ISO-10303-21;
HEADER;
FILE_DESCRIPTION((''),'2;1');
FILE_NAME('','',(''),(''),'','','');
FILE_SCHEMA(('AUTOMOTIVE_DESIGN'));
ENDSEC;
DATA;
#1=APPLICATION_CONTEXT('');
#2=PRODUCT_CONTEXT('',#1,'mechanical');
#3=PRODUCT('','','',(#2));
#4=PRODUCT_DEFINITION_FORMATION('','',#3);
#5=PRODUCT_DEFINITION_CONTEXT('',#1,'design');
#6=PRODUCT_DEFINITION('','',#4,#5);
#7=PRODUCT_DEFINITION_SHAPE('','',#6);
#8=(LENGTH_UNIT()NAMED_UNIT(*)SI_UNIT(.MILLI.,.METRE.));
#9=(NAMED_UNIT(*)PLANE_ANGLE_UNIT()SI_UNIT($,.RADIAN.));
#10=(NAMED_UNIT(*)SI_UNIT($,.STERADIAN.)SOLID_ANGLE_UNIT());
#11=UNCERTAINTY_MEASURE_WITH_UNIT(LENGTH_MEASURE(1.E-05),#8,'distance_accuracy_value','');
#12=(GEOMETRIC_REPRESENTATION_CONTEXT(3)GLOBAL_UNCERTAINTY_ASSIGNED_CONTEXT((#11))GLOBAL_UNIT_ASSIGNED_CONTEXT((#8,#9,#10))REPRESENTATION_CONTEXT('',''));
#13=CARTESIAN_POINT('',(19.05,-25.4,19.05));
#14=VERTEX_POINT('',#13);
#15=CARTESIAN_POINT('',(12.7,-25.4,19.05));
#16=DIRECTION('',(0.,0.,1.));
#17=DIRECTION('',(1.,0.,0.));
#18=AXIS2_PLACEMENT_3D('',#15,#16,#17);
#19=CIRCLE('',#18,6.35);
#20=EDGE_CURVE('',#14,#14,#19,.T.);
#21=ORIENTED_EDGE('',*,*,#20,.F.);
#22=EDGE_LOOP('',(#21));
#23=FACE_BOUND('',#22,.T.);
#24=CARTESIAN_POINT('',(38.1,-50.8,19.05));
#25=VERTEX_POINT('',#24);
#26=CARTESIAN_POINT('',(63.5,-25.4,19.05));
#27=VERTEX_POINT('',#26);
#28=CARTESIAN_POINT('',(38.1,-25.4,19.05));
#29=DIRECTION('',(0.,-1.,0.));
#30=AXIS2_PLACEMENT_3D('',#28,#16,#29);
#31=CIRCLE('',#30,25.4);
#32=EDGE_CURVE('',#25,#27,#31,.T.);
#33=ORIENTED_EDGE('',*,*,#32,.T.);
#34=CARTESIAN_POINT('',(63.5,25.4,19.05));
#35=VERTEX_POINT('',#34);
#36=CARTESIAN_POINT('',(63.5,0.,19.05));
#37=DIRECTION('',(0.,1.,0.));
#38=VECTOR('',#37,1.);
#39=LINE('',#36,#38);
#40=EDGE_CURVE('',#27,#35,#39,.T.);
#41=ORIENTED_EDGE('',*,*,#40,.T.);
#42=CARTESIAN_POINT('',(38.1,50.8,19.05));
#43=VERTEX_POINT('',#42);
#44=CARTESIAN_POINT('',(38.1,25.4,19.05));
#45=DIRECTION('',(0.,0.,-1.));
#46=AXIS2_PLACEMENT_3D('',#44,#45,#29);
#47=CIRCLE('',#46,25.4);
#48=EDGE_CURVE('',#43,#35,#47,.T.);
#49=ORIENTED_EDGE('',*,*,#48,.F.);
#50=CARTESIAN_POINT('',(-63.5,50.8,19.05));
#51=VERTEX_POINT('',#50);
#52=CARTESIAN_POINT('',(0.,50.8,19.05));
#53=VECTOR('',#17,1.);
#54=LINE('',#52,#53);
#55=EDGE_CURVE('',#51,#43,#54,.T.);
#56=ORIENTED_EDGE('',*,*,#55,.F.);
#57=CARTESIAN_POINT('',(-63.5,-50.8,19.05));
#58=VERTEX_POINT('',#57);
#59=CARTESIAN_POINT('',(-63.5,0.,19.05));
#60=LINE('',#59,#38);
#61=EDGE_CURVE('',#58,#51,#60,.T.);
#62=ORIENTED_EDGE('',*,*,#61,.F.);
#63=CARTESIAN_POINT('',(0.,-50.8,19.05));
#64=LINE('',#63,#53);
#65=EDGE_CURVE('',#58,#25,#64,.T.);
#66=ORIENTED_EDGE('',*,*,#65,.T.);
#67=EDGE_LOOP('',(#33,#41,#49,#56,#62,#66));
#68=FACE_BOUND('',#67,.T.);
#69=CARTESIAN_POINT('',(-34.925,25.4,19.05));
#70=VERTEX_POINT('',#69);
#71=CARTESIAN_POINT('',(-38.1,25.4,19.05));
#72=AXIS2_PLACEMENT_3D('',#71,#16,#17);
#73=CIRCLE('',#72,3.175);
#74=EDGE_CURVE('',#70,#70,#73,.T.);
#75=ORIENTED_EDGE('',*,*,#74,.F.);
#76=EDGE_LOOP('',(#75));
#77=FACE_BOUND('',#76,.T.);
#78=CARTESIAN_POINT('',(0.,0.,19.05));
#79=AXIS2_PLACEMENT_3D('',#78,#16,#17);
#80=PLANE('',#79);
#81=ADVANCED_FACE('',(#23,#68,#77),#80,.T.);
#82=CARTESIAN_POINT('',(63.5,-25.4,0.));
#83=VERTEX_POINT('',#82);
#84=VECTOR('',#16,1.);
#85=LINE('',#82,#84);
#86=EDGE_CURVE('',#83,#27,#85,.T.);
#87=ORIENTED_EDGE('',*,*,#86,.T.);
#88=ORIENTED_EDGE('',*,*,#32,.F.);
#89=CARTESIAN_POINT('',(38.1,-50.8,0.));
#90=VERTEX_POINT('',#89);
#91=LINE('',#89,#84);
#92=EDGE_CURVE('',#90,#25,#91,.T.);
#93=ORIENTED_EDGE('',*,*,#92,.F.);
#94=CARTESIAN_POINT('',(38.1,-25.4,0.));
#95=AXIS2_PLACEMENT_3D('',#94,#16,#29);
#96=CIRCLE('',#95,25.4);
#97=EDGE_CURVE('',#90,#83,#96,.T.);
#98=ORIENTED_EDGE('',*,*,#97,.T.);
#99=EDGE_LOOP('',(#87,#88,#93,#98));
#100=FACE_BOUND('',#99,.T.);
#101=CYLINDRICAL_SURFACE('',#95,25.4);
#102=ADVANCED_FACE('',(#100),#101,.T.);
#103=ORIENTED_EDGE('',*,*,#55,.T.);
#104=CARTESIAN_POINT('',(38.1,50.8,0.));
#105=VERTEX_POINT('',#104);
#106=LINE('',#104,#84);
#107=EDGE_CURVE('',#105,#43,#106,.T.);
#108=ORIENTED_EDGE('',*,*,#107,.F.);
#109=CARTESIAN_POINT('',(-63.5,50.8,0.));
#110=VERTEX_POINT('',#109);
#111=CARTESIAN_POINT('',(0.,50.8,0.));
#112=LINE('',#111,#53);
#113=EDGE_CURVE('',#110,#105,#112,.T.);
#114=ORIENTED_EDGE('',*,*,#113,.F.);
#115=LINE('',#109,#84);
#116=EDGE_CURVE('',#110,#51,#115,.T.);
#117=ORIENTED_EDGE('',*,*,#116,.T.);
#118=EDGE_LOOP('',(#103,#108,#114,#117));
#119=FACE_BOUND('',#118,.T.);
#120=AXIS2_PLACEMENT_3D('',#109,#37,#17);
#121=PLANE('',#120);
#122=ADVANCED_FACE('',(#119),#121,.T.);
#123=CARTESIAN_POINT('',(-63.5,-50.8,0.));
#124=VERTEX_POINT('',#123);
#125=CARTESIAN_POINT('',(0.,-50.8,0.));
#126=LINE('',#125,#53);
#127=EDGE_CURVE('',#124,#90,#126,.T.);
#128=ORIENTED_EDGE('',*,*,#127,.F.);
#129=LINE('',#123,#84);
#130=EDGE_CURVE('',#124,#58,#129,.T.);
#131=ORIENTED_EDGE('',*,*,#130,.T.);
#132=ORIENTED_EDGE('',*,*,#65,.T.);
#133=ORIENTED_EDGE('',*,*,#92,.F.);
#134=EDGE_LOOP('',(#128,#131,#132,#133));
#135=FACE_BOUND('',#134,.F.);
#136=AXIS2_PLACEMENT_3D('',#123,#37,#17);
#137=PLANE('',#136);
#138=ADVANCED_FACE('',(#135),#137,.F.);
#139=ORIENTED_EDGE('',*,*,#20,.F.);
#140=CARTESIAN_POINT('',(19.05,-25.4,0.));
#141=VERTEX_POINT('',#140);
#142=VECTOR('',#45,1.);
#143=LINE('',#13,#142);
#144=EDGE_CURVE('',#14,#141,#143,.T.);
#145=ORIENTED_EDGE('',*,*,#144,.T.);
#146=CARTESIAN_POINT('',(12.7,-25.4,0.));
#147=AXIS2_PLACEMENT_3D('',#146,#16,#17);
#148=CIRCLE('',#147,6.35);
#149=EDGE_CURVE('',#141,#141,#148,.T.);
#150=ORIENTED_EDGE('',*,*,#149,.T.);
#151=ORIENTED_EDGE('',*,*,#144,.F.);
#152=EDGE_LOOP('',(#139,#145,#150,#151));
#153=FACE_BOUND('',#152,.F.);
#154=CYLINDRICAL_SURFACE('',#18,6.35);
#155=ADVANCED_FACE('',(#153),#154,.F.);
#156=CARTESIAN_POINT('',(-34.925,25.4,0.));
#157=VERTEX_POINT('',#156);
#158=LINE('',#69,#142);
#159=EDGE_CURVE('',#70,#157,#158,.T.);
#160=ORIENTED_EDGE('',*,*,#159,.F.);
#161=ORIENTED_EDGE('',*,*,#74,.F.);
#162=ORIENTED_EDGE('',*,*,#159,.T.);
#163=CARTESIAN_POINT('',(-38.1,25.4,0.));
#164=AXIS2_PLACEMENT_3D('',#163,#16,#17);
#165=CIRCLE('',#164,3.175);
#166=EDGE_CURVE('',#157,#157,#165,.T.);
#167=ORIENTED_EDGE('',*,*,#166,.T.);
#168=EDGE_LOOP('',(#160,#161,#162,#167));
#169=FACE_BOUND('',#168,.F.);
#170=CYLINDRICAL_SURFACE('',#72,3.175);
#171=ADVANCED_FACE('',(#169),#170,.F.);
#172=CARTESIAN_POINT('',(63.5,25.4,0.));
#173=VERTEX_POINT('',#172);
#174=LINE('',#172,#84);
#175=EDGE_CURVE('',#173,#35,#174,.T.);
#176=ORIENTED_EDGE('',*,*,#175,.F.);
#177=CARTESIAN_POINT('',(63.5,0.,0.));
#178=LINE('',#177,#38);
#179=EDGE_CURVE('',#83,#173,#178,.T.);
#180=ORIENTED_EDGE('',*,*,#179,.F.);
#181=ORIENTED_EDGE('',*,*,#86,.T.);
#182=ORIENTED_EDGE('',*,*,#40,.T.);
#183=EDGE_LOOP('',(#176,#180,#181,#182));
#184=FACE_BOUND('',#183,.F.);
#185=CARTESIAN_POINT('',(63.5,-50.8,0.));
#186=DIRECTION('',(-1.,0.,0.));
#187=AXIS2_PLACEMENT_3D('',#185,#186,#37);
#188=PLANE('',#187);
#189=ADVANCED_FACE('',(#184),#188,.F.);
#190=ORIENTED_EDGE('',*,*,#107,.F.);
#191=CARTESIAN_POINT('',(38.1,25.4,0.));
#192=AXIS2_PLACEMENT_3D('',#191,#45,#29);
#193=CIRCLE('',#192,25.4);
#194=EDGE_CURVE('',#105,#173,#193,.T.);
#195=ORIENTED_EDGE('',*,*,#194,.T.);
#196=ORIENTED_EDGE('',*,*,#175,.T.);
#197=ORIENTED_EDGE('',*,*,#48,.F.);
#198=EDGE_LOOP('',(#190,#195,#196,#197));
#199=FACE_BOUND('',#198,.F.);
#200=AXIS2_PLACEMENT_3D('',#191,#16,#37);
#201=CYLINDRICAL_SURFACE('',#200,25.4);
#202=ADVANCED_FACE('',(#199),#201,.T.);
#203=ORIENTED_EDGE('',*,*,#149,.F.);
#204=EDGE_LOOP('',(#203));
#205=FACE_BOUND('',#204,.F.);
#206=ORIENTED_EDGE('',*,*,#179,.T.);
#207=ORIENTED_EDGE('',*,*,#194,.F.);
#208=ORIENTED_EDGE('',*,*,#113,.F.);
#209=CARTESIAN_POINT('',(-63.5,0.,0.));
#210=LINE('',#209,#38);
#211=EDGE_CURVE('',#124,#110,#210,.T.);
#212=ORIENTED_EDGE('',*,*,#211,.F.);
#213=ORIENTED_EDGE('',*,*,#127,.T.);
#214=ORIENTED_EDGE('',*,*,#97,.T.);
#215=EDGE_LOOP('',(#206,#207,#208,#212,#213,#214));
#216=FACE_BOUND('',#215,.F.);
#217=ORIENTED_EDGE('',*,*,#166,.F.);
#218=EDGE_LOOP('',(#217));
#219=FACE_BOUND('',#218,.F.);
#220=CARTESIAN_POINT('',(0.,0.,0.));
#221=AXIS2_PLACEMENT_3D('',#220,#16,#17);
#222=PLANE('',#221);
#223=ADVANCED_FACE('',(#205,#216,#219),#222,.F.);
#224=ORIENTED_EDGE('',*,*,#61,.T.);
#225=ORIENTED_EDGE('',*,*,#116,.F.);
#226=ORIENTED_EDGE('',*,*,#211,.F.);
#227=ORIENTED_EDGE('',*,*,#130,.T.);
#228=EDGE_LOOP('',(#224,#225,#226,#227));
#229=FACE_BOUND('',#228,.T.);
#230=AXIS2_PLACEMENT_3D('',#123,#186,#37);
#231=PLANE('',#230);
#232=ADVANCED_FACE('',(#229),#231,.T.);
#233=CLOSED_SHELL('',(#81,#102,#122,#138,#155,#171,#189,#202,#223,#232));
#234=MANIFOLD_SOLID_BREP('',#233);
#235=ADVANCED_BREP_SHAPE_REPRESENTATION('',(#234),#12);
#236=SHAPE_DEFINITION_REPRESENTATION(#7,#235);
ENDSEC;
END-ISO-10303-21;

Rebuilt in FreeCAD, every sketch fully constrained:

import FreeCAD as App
import Part
import Sketcher

V = App.Vector
Q = App.Units.Quantity


def edges_at(feature, points):
    """Names of the edges that pass closest to the given points."""
    edges = feature.Shape.Edges
    near = lambda p: min(range(len(edges)), key=lambda i: edges[i].distToShape(Part.Vertex(*p))[0])
    return sorted({f"Edge{near(p) + 1}" for p in points})


def add_polygon(sketch, points):
    """Adds a closed chain of lines whose ends are joined by coincident constraints."""
    first, n = sketch.GeometryCount, len(points)
    for a, b in zip(points, points[1:] + points[:1]):
        sketch.addGeometry(Part.LineSegment(App.Vector(*a, 0), App.Vector(*b, 0)), False)
    for i in range(n):
        sketch.addConstraint(Sketcher.Constraint("Coincident", first + i, 2, first + (i + 1) % n, 1))

doc = App.newDocument("Part")
body = doc.addObject("PartDesign::Body", "Body")

# Sketch on XY plane
sketch1 = doc.addObject("Sketcher::SketchObject", "Sketch")
body.addObject(sketch1)
sketch1.AttachmentSupport = (doc.XY_Plane, [""])
sketch1.MapMode = "FlatFace"
add_polygon(sketch1, [(-64, 51), (-64, -51), (64, -51), (64, 51)])  # lines 0-3
sketch1.addConstraint(Sketcher.Constraint("Vertical", 0))
sketch1.addConstraint(Sketcher.Constraint("Horizontal", 1))
sketch1.addConstraint(Sketcher.Constraint("Vertical", 2))
sketch1.addConstraint(Sketcher.Constraint("Horizontal", 3))
sketch1.addConstraint(Sketcher.Constraint("Symmetric", 0, 2, 2, 2, -1, 1))
sketch1.addConstraint(Sketcher.Constraint("DistanceX", 1, 1, 1, 2, Q("5 in")))
sketch1.addConstraint(Sketcher.Constraint("DistanceY", 0, 2, 0, 1, Q("4 in")))
pad1 = doc.addObject("PartDesign::Pad", "Pad")
body.addObject(pad1)
pad1.Profile = sketch1
pad1.Length = Q("0.75 in")

# Sketch on XY plane
sketch2 = doc.addObject("Sketcher::SketchObject", "Sketch001")
body.addObject(sketch2)
sketch2.AttachmentSupport = (doc.XY_Plane, [""])
sketch2.MapMode = "FlatFace"
sketch2.AttachmentOffset = App.Placement(V(0, 0, 0.75 * 25.4), App.Rotation())
sketch2.addGeometry(Part.Circle(V(-38.1, 25.4, 0), V(0, 0, 1), 3.2), False)
sketch2.addConstraint(Sketcher.Constraint("Diameter", 0, Q("0.25 in")))
sketch2.addConstraint(Sketcher.Constraint("DistanceY", -1, 1, 0, 3, Q("1 in")))
sketch2.addConstraint(Sketcher.Constraint("DistanceX", 0, 3, -1, 1, Q("1.5 in")))
pocket1 = doc.addObject("PartDesign::Pocket", "Pocket")
body.addObject(pocket1)
pocket1.Profile = sketch2
pocket1.Length = Q("1 in")

# Sketch on XY plane
sketch3 = doc.addObject("Sketcher::SketchObject", "Sketch002")
body.addObject(sketch3)
sketch3.AttachmentSupport = (doc.XY_Plane, [""])
sketch3.MapMode = "FlatFace"
sketch3.AttachmentOffset = App.Placement(V(0, 0, 0.75 * 25.4), App.Rotation())
sketch3.addGeometry(Part.Circle(V(13, -25, 0), V(0, 0, 1), 6), False)
sketch3.addConstraint(Sketcher.Constraint("Diameter", 0, Q("0.5 in")))
sketch3.addConstraint(Sketcher.Constraint("DistanceY", 0, 3, -1, 1, Q("1 in")))
sketch3.addConstraint(Sketcher.Constraint("DistanceX", -1, 1, 0, 3, Q("0.5 in")))
pocket2 = doc.addObject("PartDesign::Pocket", "Pocket001")
body.addObject(pocket2)
pocket2.Profile = sketch3
pocket2.Length = Q("1 in")
doc.recompute()

fillet = doc.addObject("PartDesign::Fillet", "Fillet")
body.addObject(fillet)
fillet.Base = (pocket2, edges_at(pocket2, [(63.5, -50.8, 9.525), (63.5, 50.8, 9.525)]))
fillet.Radius = Q("1 in")

doc.recompute()
